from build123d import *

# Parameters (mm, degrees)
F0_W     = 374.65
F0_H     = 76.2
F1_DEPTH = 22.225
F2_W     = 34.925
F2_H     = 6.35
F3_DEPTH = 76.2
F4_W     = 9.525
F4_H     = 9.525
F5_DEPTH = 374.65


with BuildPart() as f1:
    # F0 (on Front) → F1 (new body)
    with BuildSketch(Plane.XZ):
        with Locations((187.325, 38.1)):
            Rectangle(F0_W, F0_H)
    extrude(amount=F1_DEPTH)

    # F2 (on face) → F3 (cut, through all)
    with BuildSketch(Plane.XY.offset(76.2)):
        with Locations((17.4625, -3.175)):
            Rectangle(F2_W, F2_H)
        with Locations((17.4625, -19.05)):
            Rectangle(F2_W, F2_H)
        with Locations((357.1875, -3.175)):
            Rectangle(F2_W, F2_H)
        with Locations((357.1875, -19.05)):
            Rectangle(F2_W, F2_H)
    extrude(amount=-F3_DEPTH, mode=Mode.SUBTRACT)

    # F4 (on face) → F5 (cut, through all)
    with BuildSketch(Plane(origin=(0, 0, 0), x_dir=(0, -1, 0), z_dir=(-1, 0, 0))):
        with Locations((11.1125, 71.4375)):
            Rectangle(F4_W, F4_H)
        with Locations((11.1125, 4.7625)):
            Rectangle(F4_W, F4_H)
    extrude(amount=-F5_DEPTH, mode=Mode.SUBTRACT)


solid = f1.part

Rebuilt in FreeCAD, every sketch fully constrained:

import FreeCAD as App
import Part
import Sketcher

V = App.Vector
Q = App.Units.Quantity


def add_polygon(sketch, points):
    """Adds a closed chain of lines whose ends are joined by coincident constraints."""
    first, n = sketch.GeometryCount, len(points)
    for a, b in zip(points, points[1:] + points[:1]):
        sketch.addGeometry(Part.LineSegment(App.Vector(*a, 0), App.Vector(*b, 0)), False)
    for i in range(n):
        sketch.addConstraint(Sketcher.Constraint("Coincident", first + i, 2, first + (i + 1) % n, 1))

doc = App.newDocument("Part")
params = doc.addObject("Spreadsheet::Sheet", "Params")
for row, (alias, value) in enumerate([
    ("sketch1_height", "3 in"),
    ("sketch1_width", "14.75 in"),
    ("pad1_length", "0.875 in"),
    ("sketch2_height", "0.25 in"),
    ("sketch2_width", "1.375 in"),
    ("sketch3_width", "0.375 in"),
], start=1):
    params.set(f"A{row}", alias)
    params.set(f"B{row}", "=" + value)
    params.setAlias(f"B{row}", alias)

body = doc.addObject("PartDesign::Body", "Body")

sketch1 = body.newObject("Sketcher::SketchObject", "Sketch")
sketch1.AttachmentSupport = (doc.getObject("XZ_Plane"), [""])
sketch1.MapMode = "FlatFace"
add_polygon(sketch1, [(0, 76), (0, 0), (375, 0), (375, 76)])
sketch1.addConstraint([
    Sketcher.Constraint("Vertical", 0),
    Sketcher.Constraint("Horizontal", 1),
    Sketcher.Constraint("Vertical", 2),
    Sketcher.Constraint("Horizontal", 3),
    Sketcher.Constraint("Coincident", 0, 2, -1, 1),
    Sketcher.Constraint("DistanceY", 0, 2, 0, 1, Q("3 in")),
    Sketcher.Constraint("DistanceX", 1, 1, 1, 2, Q("14.75 in")),
])
sketch1.setExpression("Constraints[9]", "Params.sketch1_height")
sketch1.setExpression("Constraints[10]", "Params.sketch1_width")
pad1 = body.newObject("PartDesign::Pad", "Pad")
pad1.Profile = sketch1
pad1.setExpression("Length", "Params.pad1_length")

sketch2 = body.newObject("Sketcher::SketchObject", "Sketch001")
sketch2.AttachmentSupport = (doc.getObject("XY_Plane"), [""])
sketch2.MapMode = "FlatFace"
sketch2.AttachmentOffset = App.Placement(V(0, 0, 3 * 25.4), App.Rotation())
add_polygon(sketch2, [(0, 0), (0, -6), (35, -6), (35, 0)])
add_polygon(sketch2, [(0, -16), (0, -22), (35, -22), (35, -16)])
add_polygon(sketch2, [(340, 0), (340, -6), (375, -6), (375, 0)])
add_polygon(sketch2, [(340, -16), (340, -22), (375, -22), (375, -16)])
sketch2.addConstraint([
    Sketcher.Constraint("Vertical", 0),
    Sketcher.Constraint("Horizontal", 1),
    Sketcher.Constraint("Vertical", 2),
    Sketcher.Constraint("Horizontal", 3),
    Sketcher.Constraint("Vertical", 4),
    Sketcher.Constraint("Horizontal", 5),
    Sketcher.Constraint("Vertical", 6),
    Sketcher.Constraint("Horizontal", 7),
    Sketcher.Constraint("Vertical", 8),
    Sketcher.Constraint("Horizontal", 9),
    Sketcher.Constraint("Vertical", 10),
    Sketcher.Constraint("Horizontal", 11),
    Sketcher.Constraint("Vertical", 12),
    Sketcher.Constraint("Horizontal", 13),
    Sketcher.Constraint("Vertical", 14),
    Sketcher.Constraint("Horizontal", 15),
    Sketcher.Constraint("Coincident", 3, 2, -1, 1),
    Sketcher.Constraint("PointOnObject", 4, 2, -2),
    Sketcher.Constraint("PointOnObject", 10, 2, -1),
    Sketcher.Constraint("Horizontal", 1, 2, 8, 2),
    Sketcher.Constraint("Horizontal", 5, 2, 12, 2),
    Sketcher.Constraint("Horizontal", 7, 2, 14, 2),
    Sketcher.Constraint("Vertical", 2, 2, 5, 2),
    Sketcher.Constraint("Vertical", 11, 2, 12, 2),
    Sketcher.Constraint("Vertical", 10, 2, 13, 2),
    Sketcher.Constraint("Equal", 7, 9),
    Sketcher.Constraint("Equal", 2, 4),
    Sketcher.Constraint("DistanceX", 1, 2, 8, 2, Q("12 in")),
    Sketcher.Constraint("DistanceY", 0, 2, 0, 1, Q("0.25 in")),
    Sketcher.Constraint("DistanceX", 1, 1, 1, 2, Q("1.375 in")),
    Sketcher.Constraint("DistanceY", 4, 2, -1, 1, Q("0.875 in")),
])
sketch2.setExpression("Constraints[44]", "Params.sketch2_height")
sketch2.setExpression("Constraints[45]", "Params.sketch2_width")
pocket1 = body.newObject("PartDesign::Pocket", "Pocket")
pocket1.Profile = sketch2
pocket1.Type = "ThroughAll"

sketch3 = body.newObject("Sketcher::SketchObject", "Sketch002")
sketch3.AttachmentSupport = (doc.getObject("YZ_Plane"), [""])
sketch3.MapMode = "FlatFace"
add_polygon(sketch3, [(-6, 76), (-6, 67), (-16, 67), (-16, 76)])
add_polygon(sketch3, [(-6, 10), (-6, 0), (-16, 0), (-16, 10)])
sketch3.addConstraint([
    Sketcher.Constraint("Vertical", 0),
    Sketcher.Constraint("Horizontal", 1),
    Sketcher.Constraint("Vertical", 2),
    Sketcher.Constraint("Horizontal", 3),
    Sketcher.Constraint("Vertical", 4),
    Sketcher.Constraint("Horizontal", 5),
    Sketcher.Constraint("Vertical", 6),
    Sketcher.Constraint("Horizontal", 7),
    Sketcher.Constraint("PointOnObject", 4, 2, -1),
    Sketcher.Constraint("Vertical", 3, 2, 4, 2),
    Sketcher.Constraint("Vertical", 2, 2, 5, 2),
    Sketcher.Constraint("Equal", 7, 0),
    Sketcher.Constraint("Equal", 2, 4),
    Sketcher.Constraint("DistanceY", -1, 1, 2, 2, Q("3 in")),
    Sketcher.Constraint("DistanceX", 1, 2, 1, 1, Q("0.375 in")),
    Sketcher.Constraint("DistanceX", 0, 2, -1, 1, Q("0.25 in")),
])
sketch3.setExpression("Constraints[22]", "Params.sketch3_width")
pocket2 = body.newObject("PartDesign::Pocket", "Pocket001")
pocket2.Profile = sketch3
pocket2.Type = "ThroughAll"
pocket2.Reversed = True

doc.recompute()
